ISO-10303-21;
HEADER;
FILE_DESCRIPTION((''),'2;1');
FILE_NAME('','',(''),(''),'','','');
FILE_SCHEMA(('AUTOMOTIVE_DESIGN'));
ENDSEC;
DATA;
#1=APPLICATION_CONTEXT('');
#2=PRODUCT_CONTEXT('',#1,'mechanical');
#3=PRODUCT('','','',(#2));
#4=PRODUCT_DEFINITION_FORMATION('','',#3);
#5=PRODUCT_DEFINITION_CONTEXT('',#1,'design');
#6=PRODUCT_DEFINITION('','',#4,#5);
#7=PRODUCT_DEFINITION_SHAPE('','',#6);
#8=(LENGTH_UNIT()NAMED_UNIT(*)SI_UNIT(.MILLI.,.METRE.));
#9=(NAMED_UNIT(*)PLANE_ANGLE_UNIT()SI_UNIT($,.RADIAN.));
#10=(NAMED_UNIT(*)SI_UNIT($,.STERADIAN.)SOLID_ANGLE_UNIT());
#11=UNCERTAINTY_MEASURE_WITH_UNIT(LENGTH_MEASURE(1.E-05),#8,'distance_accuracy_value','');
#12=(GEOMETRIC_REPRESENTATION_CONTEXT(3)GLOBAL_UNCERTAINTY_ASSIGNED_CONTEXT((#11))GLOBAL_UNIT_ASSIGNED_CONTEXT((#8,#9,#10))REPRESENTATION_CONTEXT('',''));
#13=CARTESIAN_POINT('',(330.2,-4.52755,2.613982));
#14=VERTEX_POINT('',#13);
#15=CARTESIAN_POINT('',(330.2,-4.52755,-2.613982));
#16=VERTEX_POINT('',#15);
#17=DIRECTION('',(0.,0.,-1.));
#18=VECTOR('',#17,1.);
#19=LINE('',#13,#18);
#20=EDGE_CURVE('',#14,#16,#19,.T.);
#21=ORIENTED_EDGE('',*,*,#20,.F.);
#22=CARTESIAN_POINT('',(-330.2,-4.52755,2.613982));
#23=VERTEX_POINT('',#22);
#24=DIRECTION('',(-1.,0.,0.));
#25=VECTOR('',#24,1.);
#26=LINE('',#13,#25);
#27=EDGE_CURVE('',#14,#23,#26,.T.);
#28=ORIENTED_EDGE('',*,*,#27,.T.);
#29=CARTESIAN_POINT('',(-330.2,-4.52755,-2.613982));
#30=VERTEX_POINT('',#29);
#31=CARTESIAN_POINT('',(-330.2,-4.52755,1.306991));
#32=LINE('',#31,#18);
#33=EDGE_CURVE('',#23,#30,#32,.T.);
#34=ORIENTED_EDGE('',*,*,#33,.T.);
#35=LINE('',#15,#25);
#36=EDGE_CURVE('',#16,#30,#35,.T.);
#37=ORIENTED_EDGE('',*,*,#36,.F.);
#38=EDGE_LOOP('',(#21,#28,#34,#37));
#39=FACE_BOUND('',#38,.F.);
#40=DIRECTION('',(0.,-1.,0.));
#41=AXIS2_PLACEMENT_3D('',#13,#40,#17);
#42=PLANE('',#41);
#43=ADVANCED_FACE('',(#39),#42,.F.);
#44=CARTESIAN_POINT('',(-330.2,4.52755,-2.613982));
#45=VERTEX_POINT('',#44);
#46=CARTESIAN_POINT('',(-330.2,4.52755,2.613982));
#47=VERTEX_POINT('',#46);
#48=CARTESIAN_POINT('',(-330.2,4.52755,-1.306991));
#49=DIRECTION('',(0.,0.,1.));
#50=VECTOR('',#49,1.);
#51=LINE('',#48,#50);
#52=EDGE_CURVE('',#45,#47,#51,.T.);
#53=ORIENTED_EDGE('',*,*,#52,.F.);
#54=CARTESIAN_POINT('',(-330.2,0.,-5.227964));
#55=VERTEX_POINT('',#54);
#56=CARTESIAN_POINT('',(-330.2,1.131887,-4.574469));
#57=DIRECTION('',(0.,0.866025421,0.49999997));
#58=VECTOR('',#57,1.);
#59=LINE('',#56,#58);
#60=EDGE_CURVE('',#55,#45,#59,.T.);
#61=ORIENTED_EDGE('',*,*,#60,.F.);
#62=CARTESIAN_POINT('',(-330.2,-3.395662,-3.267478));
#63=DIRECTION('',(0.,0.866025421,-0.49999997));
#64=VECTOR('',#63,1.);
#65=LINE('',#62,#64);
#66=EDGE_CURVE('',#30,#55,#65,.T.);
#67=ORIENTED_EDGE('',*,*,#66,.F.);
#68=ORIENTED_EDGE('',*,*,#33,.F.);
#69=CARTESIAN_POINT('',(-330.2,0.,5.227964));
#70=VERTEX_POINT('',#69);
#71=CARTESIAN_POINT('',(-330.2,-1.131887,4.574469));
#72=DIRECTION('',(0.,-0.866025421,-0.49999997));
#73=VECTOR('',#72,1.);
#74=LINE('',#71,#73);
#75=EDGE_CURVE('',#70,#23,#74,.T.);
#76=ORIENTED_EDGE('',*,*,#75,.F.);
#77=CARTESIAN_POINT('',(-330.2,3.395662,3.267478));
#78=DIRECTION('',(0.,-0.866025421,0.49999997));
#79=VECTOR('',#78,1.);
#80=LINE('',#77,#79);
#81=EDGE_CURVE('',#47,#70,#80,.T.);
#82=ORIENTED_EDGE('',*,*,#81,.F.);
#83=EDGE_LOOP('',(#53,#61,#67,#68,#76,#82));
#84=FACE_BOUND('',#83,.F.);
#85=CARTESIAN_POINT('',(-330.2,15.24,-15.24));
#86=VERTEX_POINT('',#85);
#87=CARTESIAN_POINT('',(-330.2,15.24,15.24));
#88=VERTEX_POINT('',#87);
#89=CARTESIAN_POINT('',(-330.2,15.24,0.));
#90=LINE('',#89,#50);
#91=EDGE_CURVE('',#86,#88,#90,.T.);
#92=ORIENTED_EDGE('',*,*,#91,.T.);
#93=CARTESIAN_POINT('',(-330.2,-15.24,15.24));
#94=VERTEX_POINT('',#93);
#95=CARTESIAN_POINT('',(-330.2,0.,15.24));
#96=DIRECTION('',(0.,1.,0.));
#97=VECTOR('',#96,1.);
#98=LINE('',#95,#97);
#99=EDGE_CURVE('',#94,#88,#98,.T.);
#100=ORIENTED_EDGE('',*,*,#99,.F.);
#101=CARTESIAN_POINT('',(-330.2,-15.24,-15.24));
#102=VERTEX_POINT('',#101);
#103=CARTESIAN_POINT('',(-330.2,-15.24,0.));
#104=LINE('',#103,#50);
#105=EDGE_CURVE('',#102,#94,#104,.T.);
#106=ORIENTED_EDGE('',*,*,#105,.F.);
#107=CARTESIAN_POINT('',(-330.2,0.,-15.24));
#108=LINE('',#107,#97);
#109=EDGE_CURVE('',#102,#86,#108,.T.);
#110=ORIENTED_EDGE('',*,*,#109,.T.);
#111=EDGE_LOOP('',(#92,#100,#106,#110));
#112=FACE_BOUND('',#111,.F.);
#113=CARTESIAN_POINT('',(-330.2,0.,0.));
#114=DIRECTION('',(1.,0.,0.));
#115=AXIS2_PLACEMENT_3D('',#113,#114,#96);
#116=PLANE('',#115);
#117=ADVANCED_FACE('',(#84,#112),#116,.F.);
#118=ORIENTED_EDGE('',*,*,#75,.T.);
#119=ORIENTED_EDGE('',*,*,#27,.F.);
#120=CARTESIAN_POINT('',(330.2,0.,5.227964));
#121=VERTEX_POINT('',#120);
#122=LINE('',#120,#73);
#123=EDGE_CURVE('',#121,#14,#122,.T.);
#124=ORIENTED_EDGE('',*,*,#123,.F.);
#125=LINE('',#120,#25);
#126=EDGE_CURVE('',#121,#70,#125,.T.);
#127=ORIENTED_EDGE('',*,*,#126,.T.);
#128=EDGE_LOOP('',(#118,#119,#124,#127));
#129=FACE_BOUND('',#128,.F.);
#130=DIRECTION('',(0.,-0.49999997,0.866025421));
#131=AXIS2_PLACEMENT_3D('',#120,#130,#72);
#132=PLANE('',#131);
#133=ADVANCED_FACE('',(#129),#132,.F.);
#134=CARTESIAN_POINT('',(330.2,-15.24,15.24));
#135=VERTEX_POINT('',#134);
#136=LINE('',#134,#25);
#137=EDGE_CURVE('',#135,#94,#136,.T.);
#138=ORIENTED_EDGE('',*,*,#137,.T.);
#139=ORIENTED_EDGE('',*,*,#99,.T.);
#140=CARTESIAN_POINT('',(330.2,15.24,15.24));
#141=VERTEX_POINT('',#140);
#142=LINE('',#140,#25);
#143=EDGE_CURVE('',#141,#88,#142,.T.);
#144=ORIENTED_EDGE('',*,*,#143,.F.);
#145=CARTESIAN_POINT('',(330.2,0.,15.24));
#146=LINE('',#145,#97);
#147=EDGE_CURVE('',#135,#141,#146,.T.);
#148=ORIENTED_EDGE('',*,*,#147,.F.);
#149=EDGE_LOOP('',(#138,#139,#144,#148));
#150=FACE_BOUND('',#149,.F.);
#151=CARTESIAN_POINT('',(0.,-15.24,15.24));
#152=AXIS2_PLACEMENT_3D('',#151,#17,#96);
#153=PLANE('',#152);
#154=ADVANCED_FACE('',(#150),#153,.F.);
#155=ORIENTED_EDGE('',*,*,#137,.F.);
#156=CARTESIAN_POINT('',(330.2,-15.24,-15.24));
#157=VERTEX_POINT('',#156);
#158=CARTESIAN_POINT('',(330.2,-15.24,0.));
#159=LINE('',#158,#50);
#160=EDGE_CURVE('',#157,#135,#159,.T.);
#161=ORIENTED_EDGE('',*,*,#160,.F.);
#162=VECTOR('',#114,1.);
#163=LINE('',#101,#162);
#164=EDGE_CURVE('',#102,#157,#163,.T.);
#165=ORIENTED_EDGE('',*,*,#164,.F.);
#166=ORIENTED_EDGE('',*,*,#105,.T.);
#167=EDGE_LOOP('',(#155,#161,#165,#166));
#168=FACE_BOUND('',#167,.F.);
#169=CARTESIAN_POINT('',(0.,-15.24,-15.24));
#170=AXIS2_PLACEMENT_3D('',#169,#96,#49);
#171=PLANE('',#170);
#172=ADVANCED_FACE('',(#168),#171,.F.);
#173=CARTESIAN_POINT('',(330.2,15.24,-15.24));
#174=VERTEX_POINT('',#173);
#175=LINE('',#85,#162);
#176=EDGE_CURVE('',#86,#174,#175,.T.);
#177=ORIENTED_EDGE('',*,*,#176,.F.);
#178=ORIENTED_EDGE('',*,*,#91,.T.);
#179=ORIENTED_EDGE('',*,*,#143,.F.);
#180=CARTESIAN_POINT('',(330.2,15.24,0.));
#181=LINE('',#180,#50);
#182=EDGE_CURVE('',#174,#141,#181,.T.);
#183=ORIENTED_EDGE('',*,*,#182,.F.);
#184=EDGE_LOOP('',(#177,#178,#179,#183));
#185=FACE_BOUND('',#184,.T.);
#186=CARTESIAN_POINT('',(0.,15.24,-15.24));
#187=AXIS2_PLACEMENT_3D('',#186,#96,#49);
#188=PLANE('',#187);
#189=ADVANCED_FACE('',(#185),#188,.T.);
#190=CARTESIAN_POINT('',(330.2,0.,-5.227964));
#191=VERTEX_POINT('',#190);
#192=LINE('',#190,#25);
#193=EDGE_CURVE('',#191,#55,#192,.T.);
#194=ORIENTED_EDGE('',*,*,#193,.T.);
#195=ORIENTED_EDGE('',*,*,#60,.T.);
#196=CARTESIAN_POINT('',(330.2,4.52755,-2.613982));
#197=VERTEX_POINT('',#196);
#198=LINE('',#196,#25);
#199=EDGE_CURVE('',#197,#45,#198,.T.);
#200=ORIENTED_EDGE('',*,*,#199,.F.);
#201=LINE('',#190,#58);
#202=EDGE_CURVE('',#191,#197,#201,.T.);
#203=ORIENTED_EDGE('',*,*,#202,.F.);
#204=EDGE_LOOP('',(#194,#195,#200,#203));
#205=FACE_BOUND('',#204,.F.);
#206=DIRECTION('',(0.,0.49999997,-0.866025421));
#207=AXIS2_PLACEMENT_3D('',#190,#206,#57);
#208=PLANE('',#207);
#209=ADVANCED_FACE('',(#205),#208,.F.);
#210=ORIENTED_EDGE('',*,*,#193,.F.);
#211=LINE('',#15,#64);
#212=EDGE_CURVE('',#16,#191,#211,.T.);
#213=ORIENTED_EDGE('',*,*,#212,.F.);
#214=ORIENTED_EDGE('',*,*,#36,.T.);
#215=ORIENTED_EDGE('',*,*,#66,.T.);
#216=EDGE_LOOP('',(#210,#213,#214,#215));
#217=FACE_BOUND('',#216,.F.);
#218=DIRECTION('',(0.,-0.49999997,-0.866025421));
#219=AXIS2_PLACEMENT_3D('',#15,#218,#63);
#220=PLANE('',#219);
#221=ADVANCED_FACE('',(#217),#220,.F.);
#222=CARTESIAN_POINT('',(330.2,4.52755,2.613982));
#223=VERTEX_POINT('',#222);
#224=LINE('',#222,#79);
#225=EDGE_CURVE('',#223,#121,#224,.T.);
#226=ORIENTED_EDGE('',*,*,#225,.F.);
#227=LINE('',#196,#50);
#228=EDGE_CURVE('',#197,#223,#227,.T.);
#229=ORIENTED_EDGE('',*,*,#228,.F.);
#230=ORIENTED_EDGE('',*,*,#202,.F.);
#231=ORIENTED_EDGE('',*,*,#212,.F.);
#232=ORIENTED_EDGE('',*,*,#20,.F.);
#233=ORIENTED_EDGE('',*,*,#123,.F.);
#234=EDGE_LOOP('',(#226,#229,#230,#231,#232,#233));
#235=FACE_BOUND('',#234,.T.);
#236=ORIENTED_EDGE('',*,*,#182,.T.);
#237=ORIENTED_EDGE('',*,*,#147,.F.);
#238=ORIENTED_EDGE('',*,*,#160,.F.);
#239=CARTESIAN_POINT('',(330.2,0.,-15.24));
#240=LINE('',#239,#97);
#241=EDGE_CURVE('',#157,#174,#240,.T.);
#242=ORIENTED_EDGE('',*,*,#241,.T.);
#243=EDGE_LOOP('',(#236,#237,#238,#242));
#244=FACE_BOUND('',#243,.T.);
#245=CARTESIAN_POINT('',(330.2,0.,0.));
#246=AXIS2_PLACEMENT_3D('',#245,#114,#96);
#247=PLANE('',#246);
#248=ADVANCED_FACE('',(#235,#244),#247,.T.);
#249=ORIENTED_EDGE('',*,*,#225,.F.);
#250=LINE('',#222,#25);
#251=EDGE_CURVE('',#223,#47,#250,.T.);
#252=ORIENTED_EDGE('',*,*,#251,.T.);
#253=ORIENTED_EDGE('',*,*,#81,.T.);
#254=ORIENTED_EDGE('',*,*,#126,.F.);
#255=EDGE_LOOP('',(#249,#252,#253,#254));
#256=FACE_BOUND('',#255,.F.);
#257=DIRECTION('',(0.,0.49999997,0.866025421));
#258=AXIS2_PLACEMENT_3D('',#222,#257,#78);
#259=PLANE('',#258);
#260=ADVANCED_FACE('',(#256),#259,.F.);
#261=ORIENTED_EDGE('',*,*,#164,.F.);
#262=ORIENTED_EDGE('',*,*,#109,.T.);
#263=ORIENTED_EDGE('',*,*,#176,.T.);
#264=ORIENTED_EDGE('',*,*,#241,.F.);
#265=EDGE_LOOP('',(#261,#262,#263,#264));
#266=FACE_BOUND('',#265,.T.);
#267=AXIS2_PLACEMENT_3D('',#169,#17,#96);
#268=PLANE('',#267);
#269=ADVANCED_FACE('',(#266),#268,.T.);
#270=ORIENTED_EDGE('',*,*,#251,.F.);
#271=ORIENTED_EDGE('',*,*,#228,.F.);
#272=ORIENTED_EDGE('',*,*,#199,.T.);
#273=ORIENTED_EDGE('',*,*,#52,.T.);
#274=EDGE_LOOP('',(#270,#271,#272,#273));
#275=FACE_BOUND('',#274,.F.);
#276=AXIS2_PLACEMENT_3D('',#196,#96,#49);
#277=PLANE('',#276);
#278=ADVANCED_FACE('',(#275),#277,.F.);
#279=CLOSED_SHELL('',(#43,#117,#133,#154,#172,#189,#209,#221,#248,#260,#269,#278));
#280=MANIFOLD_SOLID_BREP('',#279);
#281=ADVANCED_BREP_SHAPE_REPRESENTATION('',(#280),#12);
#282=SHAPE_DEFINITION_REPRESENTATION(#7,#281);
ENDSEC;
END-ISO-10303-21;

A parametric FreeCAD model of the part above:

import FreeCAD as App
import Part
import Sketcher
Q = App.Units.Quantity


def add_polygon(sketch, points):
    """Adds a closed chain of lines whose ends are joined by coincident constraints."""
    first, n = sketch.GeometryCount, len(points)
    for a, b in zip(points, points[1:] + points[:1]):
        sketch.addGeometry(Part.LineSegment(App.Vector(*a, 0), App.Vector(*b, 0)), False)
    for i in range(n):
        sketch.addConstraint(Sketcher.Constraint("Coincident", first + i, 2, first + (i + 1) % n, 1))

doc = App.newDocument("Part")
body = doc.addObject("PartDesign::Body", "Body")

# Sketch on YZ plane
sketch1 = body.newObject("Sketcher::SketchObject", "Sketch")
sketch1.AttachmentSupport = (doc.getObject("YZ_Plane"), [""])
sketch1.MapMode = "FlatFace"
add_polygon(sketch1, [(-15, 15), (-15, -15), (15, -15), (15, 15)])  # lines 0-3
sketch1.addConstraint([
    Sketcher.Constraint("Vertical", 0),
    Sketcher.Constraint("Horizontal", 1),
    Sketcher.Constraint("Vertical", 2),
    Sketcher.Constraint("Horizontal", 3),
    Sketcher.Constraint("Symmetric", 0, 2, 2, 2, -1, 1),
    Sketcher.Constraint("Equal", 3, 0),
    Sketcher.Constraint("DistanceX", 1, 1, 1, 2, Q("1.2 in")),
])
pad1 = body.newObject("PartDesign::Pad", "Pad")
pad1.Profile = sketch1
pad1.Length = Q("26 in")
pad1.Midplane = True

# Sketch on YZ plane
sketch2 = body.newObject("Sketcher::SketchObject", "Sketch001")
sketch2.AttachmentSupport = (doc.getObject("YZ_Plane"), [""])
sketch2.MapMode = "FlatFace"
sketch2.AttachmentOffset = App.Placement(App.Vector(0, 0, 13 * 25.4), App.Rotation())
add_polygon(sketch2, [(5, -3), (5, 3), (0, 5), (-5, 3), (-5, -3), (0, -5)])  # lines 0-5
sketch2.addConstraint([
    Sketcher.Constraint("Vertical", 0),
    Sketcher.Constraint("Vertical", 3),
    Sketcher.Constraint("Symmetric", 0, 2, 3, 2, -1, 1),
    Sketcher.Constraint("Symmetric", 1, 2, 4, 2, -1, 1),
    Sketcher.Constraint("PointOnObject", 1, 2, -2),
    Sketcher.Constraint("Parallel", 2, 5),
    Sketcher.Constraint("Horizontal", 0, 2, 2, 2),
    Sketcher.Constraint("Angle", 1, Q("150.000002 deg")),
    Sketcher.Constraint("DistanceX", 2, 2, 0, 2, Q("0.3565 in")),
    Sketcher.Constraint("DistanceY", 0, 1, 0, 2, Q("5.227964 mm")),
])
pocket1 = body.newObject("PartDesign::Pocket", "Pocket")
pocket1.Profile = sketch2
pocket1.Type = "ThroughAll"

doc.recompute()
